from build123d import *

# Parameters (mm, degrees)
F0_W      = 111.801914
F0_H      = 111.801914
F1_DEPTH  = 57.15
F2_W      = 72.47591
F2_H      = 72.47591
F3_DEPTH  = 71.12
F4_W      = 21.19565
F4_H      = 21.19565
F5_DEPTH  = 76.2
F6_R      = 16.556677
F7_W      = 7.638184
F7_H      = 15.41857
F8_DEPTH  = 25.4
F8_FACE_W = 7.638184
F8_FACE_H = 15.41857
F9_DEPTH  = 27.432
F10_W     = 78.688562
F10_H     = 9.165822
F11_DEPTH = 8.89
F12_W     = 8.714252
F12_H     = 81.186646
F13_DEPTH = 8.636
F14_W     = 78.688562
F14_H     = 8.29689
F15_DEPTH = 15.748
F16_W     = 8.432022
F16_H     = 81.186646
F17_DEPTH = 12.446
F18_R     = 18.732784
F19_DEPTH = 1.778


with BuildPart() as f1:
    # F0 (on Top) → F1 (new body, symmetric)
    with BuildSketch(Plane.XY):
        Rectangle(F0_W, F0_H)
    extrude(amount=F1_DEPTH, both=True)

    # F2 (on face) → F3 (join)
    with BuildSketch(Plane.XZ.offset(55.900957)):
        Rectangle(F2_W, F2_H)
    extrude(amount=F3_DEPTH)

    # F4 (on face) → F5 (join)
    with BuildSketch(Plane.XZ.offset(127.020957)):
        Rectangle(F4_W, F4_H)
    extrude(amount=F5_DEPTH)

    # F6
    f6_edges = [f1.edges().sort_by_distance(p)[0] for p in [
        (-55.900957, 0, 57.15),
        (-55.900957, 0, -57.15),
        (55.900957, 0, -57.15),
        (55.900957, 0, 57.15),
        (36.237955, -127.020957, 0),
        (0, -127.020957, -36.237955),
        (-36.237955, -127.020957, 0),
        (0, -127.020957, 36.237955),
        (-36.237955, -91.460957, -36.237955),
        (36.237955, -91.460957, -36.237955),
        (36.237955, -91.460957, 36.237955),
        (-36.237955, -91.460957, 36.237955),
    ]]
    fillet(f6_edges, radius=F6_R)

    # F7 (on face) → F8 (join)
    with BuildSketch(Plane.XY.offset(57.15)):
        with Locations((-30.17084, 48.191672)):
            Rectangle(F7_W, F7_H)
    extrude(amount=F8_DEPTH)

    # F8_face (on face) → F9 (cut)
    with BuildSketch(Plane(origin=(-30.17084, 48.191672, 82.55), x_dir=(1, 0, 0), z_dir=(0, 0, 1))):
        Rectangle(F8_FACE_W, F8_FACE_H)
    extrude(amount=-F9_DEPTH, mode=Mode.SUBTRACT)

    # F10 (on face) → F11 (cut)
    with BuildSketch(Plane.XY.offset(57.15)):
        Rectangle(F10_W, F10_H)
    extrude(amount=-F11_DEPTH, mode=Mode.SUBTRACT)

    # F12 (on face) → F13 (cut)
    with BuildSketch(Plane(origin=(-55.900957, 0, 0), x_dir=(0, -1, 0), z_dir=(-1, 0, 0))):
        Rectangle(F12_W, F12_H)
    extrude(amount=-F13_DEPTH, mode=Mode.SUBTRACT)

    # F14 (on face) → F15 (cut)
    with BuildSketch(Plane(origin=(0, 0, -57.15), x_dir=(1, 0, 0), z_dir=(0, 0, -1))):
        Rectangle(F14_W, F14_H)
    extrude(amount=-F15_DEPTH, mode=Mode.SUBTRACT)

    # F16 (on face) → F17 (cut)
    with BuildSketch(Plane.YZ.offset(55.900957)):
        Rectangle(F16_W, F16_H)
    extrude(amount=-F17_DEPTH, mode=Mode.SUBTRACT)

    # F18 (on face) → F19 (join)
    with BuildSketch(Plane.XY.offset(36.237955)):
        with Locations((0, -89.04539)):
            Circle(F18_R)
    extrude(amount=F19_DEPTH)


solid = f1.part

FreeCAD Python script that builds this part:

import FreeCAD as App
import Part
import Sketcher

V = App.Vector
Q = App.Units.Quantity


def edges_at(feature, points):
    """Names of the edges that pass closest to the given points."""
    edges = feature.Shape.Edges
    near = lambda p: min(range(len(edges)), key=lambda i: edges[i].distToShape(Part.Vertex(*p))[0])
    return sorted({f"Edge{near(p) + 1}" for p in points})

doc = App.newDocument("Part")
body = doc.addObject("PartDesign::Body", "Body")

# Sketch on XY plane
sketch1 = body.newObject("Sketcher::SketchObject", "Sketch")
sketch1.AttachmentSupport = (doc.getObject("XY_Plane"), [""])
sketch1.MapMode = "FlatFace"
sketch1.addGeometry([
    Part.LineSegment(V(-56, 56, 0), V(-56, -56, 0)),
    Part.LineSegment(V(-56, -56, 0), V(56, -56, 0)),
    Part.LineSegment(V(56, -56, 0), V(56, 56, 0)),
    Part.LineSegment(V(56, 56, 0), V(-56, 56, 0)),
], False)
sketch1.addConstraint([
    Sketcher.Constraint("Coincident", 0, 2, 1, 1),
    Sketcher.Constraint("Coincident", 1, 2, 2, 1),
    Sketcher.Constraint("Coincident", 2, 2, 3, 1),
    Sketcher.Constraint("Coincident", 3, 2, 0, 1),
    Sketcher.Constraint("Vertical", 0),
    Sketcher.Constraint("Horizontal", 1),
    Sketcher.Constraint("Vertical", 2),
    Sketcher.Constraint("Horizontal", 3),
    Sketcher.Constraint("Symmetric", 0, 2, 2, 2, -1, 1),
    Sketcher.Constraint("Equal", 3, 0),
    Sketcher.Constraint("DistanceX", 1, 1, 1, 2, Q("111.801914 mm")),
])
pad1 = body.newObject("PartDesign::Pad", "Pad")
pad1.Profile = sketch1
pad1.Length = Q("4.5 in")
pad1.Midplane = True

# Sketch on XZ plane
sketch2 = body.newObject("Sketcher::SketchObject", "Sketch001")
sketch2.AttachmentSupport = (doc.getObject("XZ_Plane"), [""])
sketch2.MapMode = "FlatFace"
sketch2.AttachmentOffset = App.Placement(V(0, 0, 55.900957), App.Rotation())
sketch2.addGeometry([
    Part.LineSegment(V(-36, 36, 0), V(-36, -36, 0)),
    Part.LineSegment(V(-36, -36, 0), V(36, -36, 0)),
    Part.LineSegment(V(36, -36, 0), V(36, 36, 0)),
    Part.LineSegment(V(36, 36, 0), V(-36, 36, 0)),
], False)
sketch2.addConstraint([
    Sketcher.Constraint("Coincident", 0, 2, 1, 1),
    Sketcher.Constraint("Coincident", 1, 2, 2, 1),
    Sketcher.Constraint("Coincident", 2, 2, 3, 1),
    Sketcher.Constraint("Coincident", 3, 2, 0, 1),
    Sketcher.Constraint("Vertical", 0),
    Sketcher.Constraint("Horizontal", 1),
    Sketcher.Constraint("Vertical", 2),
    Sketcher.Constraint("Horizontal", 3),
    Sketcher.Constraint("Symmetric", 0, 2, 2, 2, -1, 1),
    Sketcher.Constraint("Equal", 3, 0),
    Sketcher.Constraint("DistanceX", 1, 1, 1, 2, Q("72.47591 mm")),
])
pad2 = body.newObject("PartDesign::Pad", "Pad001")
pad2.Profile = sketch2
pad2.Length = Q("2.8 in")

# Sketch on XZ plane
sketch3 = body.newObject("Sketcher::SketchObject", "Sketch002")
sketch3.AttachmentSupport = (doc.getObject("XZ_Plane"), [""])
sketch3.MapMode = "FlatFace"
sketch3.AttachmentOffset = App.Placement(V(0, 0, 127.020957), App.Rotation())
sketch3.addGeometry([
    Part.LineSegment(V(-11, 11, 0), V(-11, -11, 0)),
    Part.LineSegment(V(-11, -11, 0), V(11, -11, 0)),
    Part.LineSegment(V(11, -11, 0), V(11, 11, 0)),
    Part.LineSegment(V(11, 11, 0), V(-11, 11, 0)),
], False)
sketch3.addConstraint([
    Sketcher.Constraint("Coincident", 0, 2, 1, 1),
    Sketcher.Constraint("Coincident", 1, 2, 2, 1),
    Sketcher.Constraint("Coincident", 2, 2, 3, 1),
    Sketcher.Constraint("Coincident", 3, 2, 0, 1),
    Sketcher.Constraint("Vertical", 0),
    Sketcher.Constraint("Horizontal", 1),
    Sketcher.Constraint("Vertical", 2),
    Sketcher.Constraint("Horizontal", 3),
    Sketcher.Constraint("Symmetric", 0, 2, 2, 2, -1, 1),
    Sketcher.Constraint("Equal", 3, 0),
    Sketcher.Constraint("DistanceX", 1, 1, 1, 2, Q("21.19565 mm")),
])
pad3 = body.newObject("PartDesign::Pad", "Pad002")
pad3.Profile = sketch3
pad3.Length = Q("3 in")
doc.recompute()

fillet = body.newObject("PartDesign::Fillet", "Fillet")
fillet.Base = (pad3, edges_at(pad3, [
    (-55.901, 0, 57.15),
    (-55.901, 0, -57.15),
    (55.901, 0, -57.15),
    (55.901, 0, 57.15),
    (36.238, -127.021, 0),
    (0, -127.021, -36.238),
    (-36.238, -127.021, 0),
    (0, -127.021, 36.238),
    (-36.238, -91.461, -36.238),
    (36.238, -91.461, -36.238),
    (36.238, -91.461, 36.238),
    (-36.238, -91.461, 36.238),
]))
fillet.Radius = 16.556677

# Sketch on XY plane
sketch4 = body.newObject("Sketcher::SketchObject", "Sketch003")
sketch4.AttachmentSupport = (doc.getObject("XY_Plane"), [""])
sketch4.MapMode = "FlatFace"
sketch4.AttachmentOffset = App.Placement(V(0, 0, 2.25 * 25.4), App.Rotation())
sketch4.addGeometry([
    Part.LineSegment(V(-34, 56, 0), V(-34, 40, 0)),
    Part.LineSegment(V(-34, 40, 0), V(-26, 40, 0)),
    Part.LineSegment(V(-26, 40, 0), V(-26, 56, 0)),
    Part.LineSegment(V(-26, 56, 0), V(-34, 56, 0)),
], False)
sketch4.addConstraint([
    Sketcher.Constraint("Coincident", 0, 2, 1, 1),
    Sketcher.Constraint("Coincident", 1, 2, 2, 1),
    Sketcher.Constraint("Coincident", 2, 2, 3, 1),
    Sketcher.Constraint("Coincident", 3, 2, 0, 1),
    Sketcher.Constraint("Vertical", 0),
    Sketcher.Constraint("Horizontal", 1),
    Sketcher.Constraint("Vertical", 2),
    Sketcher.Constraint("Horizontal", 3),
    Sketcher.Constraint("DistanceY", 0, 2, 0, 1, Q("15.41857 mm")),
    Sketcher.Constraint("DistanceX", 1, 1, 1, 2, Q("7.638184 mm")),
    Sketcher.Constraint("DistanceX", 1, 2, -1, 1, Q("26.351748 mm")),
    Sketcher.Constraint("DistanceY", -1, 1, 0, 2, Q("40.482387 mm")),
])
pad4 = body.newObject("PartDesign::Pad", "Pad003")
pad4.Profile = sketch4
pad4.Length = Q("1 in")

# Sketch on XY plane
sketch5 = body.newObject("Sketcher::SketchObject", "Sketch004")
sketch5.AttachmentSupport = (doc.getObject("XY_Plane"), [""])
sketch5.MapMode = "FlatFace"
sketch5.AttachmentOffset = App.Placement(V(0, 0, 3.25 * 25.4), App.Rotation())
sketch5.addGeometry([
    Part.LineSegment(V(-34, 56, 0), V(-34, 40, 0)),
    Part.LineSegment(V(-34, 40, 0), V(-26, 40, 0)),
    Part.LineSegment(V(-26, 40, 0), V(-26, 56, 0)),
    Part.LineSegment(V(-26, 56, 0), V(-34, 56, 0)),
], False)
sketch5.addConstraint([
    Sketcher.Constraint("Coincident", 0, 2, 1, 1),
    Sketcher.Constraint("Coincident", 1, 2, 2, 1),
    Sketcher.Constraint("Coincident", 2, 2, 3, 1),
    Sketcher.Constraint("Coincident", 3, 2, 0, 1),
    Sketcher.Constraint("Vertical", 0),
    Sketcher.Constraint("Horizontal", 1),
    Sketcher.Constraint("Vertical", 2),
    Sketcher.Constraint("Horizontal", 3),
    Sketcher.Constraint("DistanceY", 0, 2, 0, 1, Q("15.41857 mm")),
    Sketcher.Constraint("DistanceX", 1, 1, 1, 2, Q("7.638184 mm")),
    Sketcher.Constraint("DistanceX", 1, 2, -1, 1, Q("26.351748 mm")),
    Sketcher.Constraint("DistanceY", -1, 1, 0, 2, Q("40.482387 mm")),
])
pocket1 = body.newObject("PartDesign::Pocket", "Pocket")
pocket1.Profile = sketch5
pocket1.Length = Q("1.08 in")

# Sketch on XY plane
sketch6 = body.newObject("Sketcher::SketchObject", "Sketch005")
sketch6.AttachmentSupport = (doc.getObject("XY_Plane"), [""])
sketch6.MapMode = "FlatFace"
sketch6.AttachmentOffset = App.Placement(V(0, 0, 2.25 * 25.4), App.Rotation())
sketch6.addGeometry([
    Part.LineSegment(V(-39, 5, 0), V(-39, -5, 0)),
    Part.LineSegment(V(-39, -5, 0), V(39, -5, 0)),
    Part.LineSegment(V(39, -5, 0), V(39, 5, 0)),
    Part.LineSegment(V(39, 5, 0), V(-39, 5, 0)),
], False)
sketch6.addConstraint([
    Sketcher.Constraint("Coincident", 0, 2, 1, 1),
    Sketcher.Constraint("Coincident", 1, 2, 2, 1),
    Sketcher.Constraint("Coincident", 2, 2, 3, 1),
    Sketcher.Constraint("Coincident", 3, 2, 0, 1),
    Sketcher.Constraint("Vertical", 0),
    Sketcher.Constraint("Horizontal", 1),
    Sketcher.Constraint("Vertical", 2),
    Sketcher.Constraint("Horizontal", 3),
    Sketcher.Constraint("Symmetric", 0, 2, 2, 2, -1, 1),
    Sketcher.Constraint("DistanceX", 1, 1, 1, 2, Q("78.688562 mm")),
    Sketcher.Constraint("DistanceY", 0, 2, 0, 1, Q("9.165822 mm")),
])
pocket2 = body.newObject("PartDesign::Pocket", "Pocket001")
pocket2.Profile = sketch6
pocket2.Length = Q("0.35 in")

# Sketch on YZ plane
sketch7 = body.newObject("Sketcher::SketchObject", "Sketch006")
sketch7.AttachmentSupport = (doc.getObject("YZ_Plane"), [""])
sketch7.MapMode = "FlatFace"
sketch7.AttachmentOffset = App.Placement(V(0, 0, -55.900957), App.Rotation())
sketch7.addGeometry([
    Part.LineSegment(V(4, 41, 0), V(4, -41, 0)),
    Part.LineSegment(V(4, -41, 0), V(-4, -41, 0)),
    Part.LineSegment(V(-4, -41, 0), V(-4, 41, 0)),
    Part.LineSegment(V(-4, 41, 0), V(4, 41, 0)),
], False)
sketch7.addConstraint([
    Sketcher.Constraint("Coincident", 0, 2, 1, 1),
    Sketcher.Constraint("Coincident", 1, 2, 2, 1),
    Sketcher.Constraint("Coincident", 2, 2, 3, 1),
    Sketcher.Constraint("Coincident", 3, 2, 0, 1),
    Sketcher.Constraint("Vertical", 0),
    Sketcher.Constraint("Horizontal", 1),
    Sketcher.Constraint("Vertical", 2),
    Sketcher.Constraint("Horizontal", 3),
    Sketcher.Constraint("Symmetric", 0, 2, 2, 2, -1, 1),
    Sketcher.Constraint("DistanceX", 1, 2, 1, 1, Q("8.714252 mm")),
    Sketcher.Constraint("DistanceY", 0, 2, 0, 1, Q("81.186646 mm")),
])
pocket3 = body.newObject("PartDesign::Pocket", "Pocket002")
pocket3.Profile = sketch7
pocket3.Length = Q("0.34 in")
pocket3.Reversed = True

# Sketch on XY plane
sketch8 = body.newObject("Sketcher::SketchObject", "Sketch007")
sketch8.AttachmentSupport = (doc.getObject("XY_Plane"), [""])
sketch8.MapMode = "FlatFace"
sketch8.AttachmentOffset = App.Placement(V(0, 0, -2.25 * 25.4), App.Rotation())
sketch8.addGeometry([
    Part.LineSegment(V(-39, -4, 0), V(-39, 4, 0)),
    Part.LineSegment(V(-39, 4, 0), V(39, 4, 0)),
    Part.LineSegment(V(39, 4, 0), V(39, -4, 0)),
    Part.LineSegment(V(39, -4, 0), V(-39, -4, 0)),
], False)
sketch8.addConstraint([
    Sketcher.Constraint("Coincident", 0, 2, 1, 1),
    Sketcher.Constraint("Coincident", 1, 2, 2, 1),
    Sketcher.Constraint("Coincident", 2, 2, 3, 1),
    Sketcher.Constraint("Coincident", 3, 2, 0, 1),
    Sketcher.Constraint("Vertical", 0),
    Sketcher.Constraint("Horizontal", 1),
    Sketcher.Constraint("Vertical", 2),
    Sketcher.Constraint("Horizontal", 3),
    Sketcher.Constraint("Symmetric", 0, 2, 2, 2, -1, 1),
    Sketcher.Constraint("DistanceY", 0, 1, 0, 2, Q("8.29689 mm")),
    Sketcher.Constraint("DistanceX", 1, 1, 1, 2, Q("78.688562 mm")),
])
pocket4 = body.newObject("PartDesign::Pocket", "Pocket003")
pocket4.Profile = sketch8
pocket4.Length = Q("0.62 in")
pocket4.Reversed = True

# Sketch on YZ plane
sketch9 = body.newObject("Sketcher::SketchObject", "Sketch008")
sketch9.AttachmentSupport = (doc.getObject("YZ_Plane"), [""])
sketch9.MapMode = "FlatFace"
sketch9.AttachmentOffset = App.Placement(V(0, 0, 55.900957), App.Rotation())
sketch9.addGeometry([
    Part.LineSegment(V(-4, 41, 0), V(-4, -41, 0)),
    Part.LineSegment(V(-4, -41, 0), V(4, -41, 0)),
    Part.LineSegment(V(4, -41, 0), V(4, 41, 0)),
    Part.LineSegment(V(4, 41, 0), V(-4, 41, 0)),
], False)
sketch9.addConstraint([
    Sketcher.Constraint("Coincident", 0, 2, 1, 1),
    Sketcher.Constraint("Coincident", 1, 2, 2, 1),
    Sketcher.Constraint("Coincident", 2, 2, 3, 1),
    Sketcher.Constraint("Coincident", 3, 2, 0, 1),
    Sketcher.Constraint("Vertical", 0),
    Sketcher.Constraint("Horizontal", 1),
    Sketcher.Constraint("Vertical", 2),
    Sketcher.Constraint("Horizontal", 3),
    Sketcher.Constraint("Symmetric", 0, 2, 2, 2, -1, 1),
    Sketcher.Constraint("DistanceX", 1, 1, 1, 2, Q("8.432022 mm")),
    Sketcher.Constraint("DistanceY", 0, 2, 0, 1, Q("81.186646 mm")),
])
pocket5 = body.newObject("PartDesign::Pocket", "Pocket004")
pocket5.Profile = sketch9
pocket5.Length = Q("0.49 in")

# Sketch on XY plane
sketch10 = body.newObject("Sketcher::SketchObject", "Sketch009")
sketch10.AttachmentSupport = (doc.getObject("XY_Plane"), [""])
sketch10.MapMode = "FlatFace"
sketch10.AttachmentOffset = App.Placement(V(0, 0, 36.237955), App.Rotation())
sketch10.addGeometry(Part.Circle(V(0, -89, 0), V(0, 0, 1), 19), False)
sketch10.addConstraint([
    Sketcher.Constraint("PointOnObject", 0, 3, -2),
    Sketcher.Constraint("Diameter", 0, Q("37.465568 mm")),
    Sketcher.Constraint("DistanceY", 0, 3, -1, 1, Q("89.04539 mm")),
])
pad5 = body.newObject("PartDesign::Pad", "Pad004")
pad5.Profile = sketch10
pad5.Length = Q("0.07 in")

doc.recompute()
